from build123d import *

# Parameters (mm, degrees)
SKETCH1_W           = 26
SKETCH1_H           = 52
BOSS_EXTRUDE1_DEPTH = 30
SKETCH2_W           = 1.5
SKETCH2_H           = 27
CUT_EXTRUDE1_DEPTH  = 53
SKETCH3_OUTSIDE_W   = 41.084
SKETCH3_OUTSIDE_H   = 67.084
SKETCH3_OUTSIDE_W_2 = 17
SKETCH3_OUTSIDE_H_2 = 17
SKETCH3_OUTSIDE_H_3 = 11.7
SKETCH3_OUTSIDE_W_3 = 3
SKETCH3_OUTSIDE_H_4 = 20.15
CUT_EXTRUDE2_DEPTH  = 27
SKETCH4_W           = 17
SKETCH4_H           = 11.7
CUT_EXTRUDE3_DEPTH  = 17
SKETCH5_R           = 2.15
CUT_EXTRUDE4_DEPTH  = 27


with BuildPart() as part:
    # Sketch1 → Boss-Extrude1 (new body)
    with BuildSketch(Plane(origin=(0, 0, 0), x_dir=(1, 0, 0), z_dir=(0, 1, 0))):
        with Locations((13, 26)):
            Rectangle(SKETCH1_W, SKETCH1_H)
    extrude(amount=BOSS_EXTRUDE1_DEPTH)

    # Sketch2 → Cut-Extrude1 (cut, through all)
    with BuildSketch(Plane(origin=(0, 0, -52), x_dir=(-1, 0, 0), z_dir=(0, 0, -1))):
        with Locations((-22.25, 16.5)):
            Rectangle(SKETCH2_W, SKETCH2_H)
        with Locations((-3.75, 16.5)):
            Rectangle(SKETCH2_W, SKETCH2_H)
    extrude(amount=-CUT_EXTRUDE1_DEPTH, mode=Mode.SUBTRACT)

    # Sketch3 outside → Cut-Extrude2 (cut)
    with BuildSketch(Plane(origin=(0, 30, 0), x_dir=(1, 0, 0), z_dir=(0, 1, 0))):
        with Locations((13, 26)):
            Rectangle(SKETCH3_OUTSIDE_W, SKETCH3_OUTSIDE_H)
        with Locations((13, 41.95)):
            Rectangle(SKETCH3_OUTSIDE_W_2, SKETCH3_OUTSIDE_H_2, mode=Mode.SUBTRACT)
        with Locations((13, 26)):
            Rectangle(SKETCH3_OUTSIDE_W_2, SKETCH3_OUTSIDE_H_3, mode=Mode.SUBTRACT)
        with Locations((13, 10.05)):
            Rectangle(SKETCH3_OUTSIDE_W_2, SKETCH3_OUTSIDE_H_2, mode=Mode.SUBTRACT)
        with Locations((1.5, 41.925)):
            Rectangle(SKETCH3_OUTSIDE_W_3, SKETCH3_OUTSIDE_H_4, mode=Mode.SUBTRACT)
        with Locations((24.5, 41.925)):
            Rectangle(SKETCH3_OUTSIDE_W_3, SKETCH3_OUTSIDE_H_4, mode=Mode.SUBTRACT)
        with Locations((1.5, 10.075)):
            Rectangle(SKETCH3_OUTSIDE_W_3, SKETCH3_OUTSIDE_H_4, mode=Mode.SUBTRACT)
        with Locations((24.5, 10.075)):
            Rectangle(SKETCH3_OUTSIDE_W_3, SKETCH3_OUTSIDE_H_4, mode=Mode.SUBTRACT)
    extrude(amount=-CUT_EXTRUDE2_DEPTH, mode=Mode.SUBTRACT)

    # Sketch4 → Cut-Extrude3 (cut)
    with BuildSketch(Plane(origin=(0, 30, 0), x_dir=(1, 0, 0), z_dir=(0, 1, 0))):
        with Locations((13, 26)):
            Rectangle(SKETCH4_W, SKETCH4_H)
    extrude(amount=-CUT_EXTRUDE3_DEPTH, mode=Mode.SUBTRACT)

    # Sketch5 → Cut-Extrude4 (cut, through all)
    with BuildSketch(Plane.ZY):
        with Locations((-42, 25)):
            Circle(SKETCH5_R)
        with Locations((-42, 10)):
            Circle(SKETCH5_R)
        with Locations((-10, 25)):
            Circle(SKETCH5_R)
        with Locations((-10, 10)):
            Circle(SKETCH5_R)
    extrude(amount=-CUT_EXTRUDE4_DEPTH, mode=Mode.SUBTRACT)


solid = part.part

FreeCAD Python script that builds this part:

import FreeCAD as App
import Part
import Sketcher

V = App.Vector
Q = App.Units.Quantity

doc = App.newDocument("Part")
params = doc.addObject("Spreadsheet::Sheet", "Params")
for row, (alias, value) in enumerate([
    ("sketch1_width", "26 mm"),
    ("sketch1_height", "52 mm"),
    ("pad1_length", "30 mm"),
    ("sketch2_height", "27 mm"),
    ("sketch2_width", "1.5 mm"),
    ("sketch3_width", "3 mm"),
    ("sketch3_width2", "17 mm"),
    ("sketch3_height", "11.7 mm"),
    ("pocket2_length", "27 mm"),
    ("sketch4_width", "17 mm"),
    ("sketch4_height", "11.7 mm"),
    ("pocket3_length", "17 mm"),
    ("sketch5_diameter", "4.3 mm"),
], start=1):
    params.set(f"A{row}", alias)
    params.set(f"B{row}", "=" + value)
    params.setAlias(f"B{row}", alias)

body = doc.addObject("PartDesign::Body", "Body")

sketch1 = body.newObject("Sketcher::SketchObject", "Sketch")
sketch1.AttachmentSupport = (doc.getObject("XZ_Plane"), [""])
sketch1.MapMode = "FlatFace"
sketch1.addGeometry(Part.LineSegment(V(0, -52, 0), V(0, 0, 0)), False)
sketch1.addGeometry(Part.LineSegment(V(0, 0, 0), V(26, 0, 0)), False)
sketch1.addGeometry(Part.LineSegment(V(26, 0, 0), V(26, -52, 0)), False)
sketch1.addGeometry(Part.LineSegment(V(26, -52, 0), V(0, -52, 0)), False)
sketch1.addConstraint(Sketcher.Constraint("Coincident", 0, 2, 1, 1))
sketch1.addConstraint(Sketcher.Constraint("Coincident", 1, 2, 2, 1))
sketch1.addConstraint(Sketcher.Constraint("Coincident", 2, 2, 3, 1))
sketch1.addConstraint(Sketcher.Constraint("Coincident", 3, 2, 0, 1))
sketch1.addConstraint(Sketcher.Constraint("Vertical", 0))
sketch1.addConstraint(Sketcher.Constraint("Horizontal", 1))
sketch1.addConstraint(Sketcher.Constraint("Vertical", 2))
sketch1.addConstraint(Sketcher.Constraint("Horizontal", 3))
sketch1.addConstraint(Sketcher.Constraint("Coincident", 0, 2, -1, 1))
sketch1.addConstraint(Sketcher.Constraint("DistanceX", 1, 1, 1, 2, Q("26 mm")))
sketch1.addConstraint(Sketcher.Constraint("DistanceY", 0, 1, 0, 2, Q("52 mm")))
sketch1.setExpression("Constraints[9]", "Params.sketch1_width")
sketch1.setExpression("Constraints[10]", "Params.sketch1_height")
pad1 = body.newObject("PartDesign::Pad", "Pad")
pad1.Profile = sketch1
pad1.setExpression("Length", "Params.pad1_length")
pad1.Reversed = True

sketch2 = body.newObject("Sketcher::SketchObject", "Sketch001")
sketch2.AttachmentSupport = (doc.getObject("XY_Plane"), [""])
sketch2.MapMode = "FlatFace"
sketch2.AttachmentOffset = App.Placement(V(0, 0, -52), App.Rotation())
sketch2.addGeometry(Part.LineSegment(V(23, 30, 0), V(23, 3, 0)), False)
sketch2.addGeometry(Part.LineSegment(V(23, 3, 0), V(21.5, 3, 0)), False)
sketch2.addGeometry(Part.LineSegment(V(21.5, 3, 0), V(21.5, 30, 0)), False)
sketch2.addGeometry(Part.LineSegment(V(21.5, 30, 0), V(23, 30, 0)), False)
sketch2.addGeometry(Part.LineSegment(V(4.5, 30, 0), V(4.5, 3, 0)), False)
sketch2.addGeometry(Part.LineSegment(V(4.5, 3, 0), V(3, 3, 0)), False)
sketch2.addGeometry(Part.LineSegment(V(3, 3, 0), V(3, 30, 0)), False)
sketch2.addGeometry(Part.LineSegment(V(3, 30, 0), V(4.5, 30, 0)), False)
sketch2.addConstraint(Sketcher.Constraint("Coincident", 0, 2, 1, 1))
sketch2.addConstraint(Sketcher.Constraint("Coincident", 1, 2, 2, 1))
sketch2.addConstraint(Sketcher.Constraint("Coincident", 2, 2, 3, 1))
sketch2.addConstraint(Sketcher.Constraint("Coincident", 3, 2, 0, 1))
sketch2.addConstraint(Sketcher.Constraint("Coincident", 4, 2, 5, 1))
sketch2.addConstraint(Sketcher.Constraint("Coincident", 5, 2, 6, 1))
sketch2.addConstraint(Sketcher.Constraint("Coincident", 6, 2, 7, 1))
sketch2.addConstraint(Sketcher.Constraint("Coincident", 7, 2, 4, 1))
sketch2.addConstraint(Sketcher.Constraint("Vertical", 0))
sketch2.addConstraint(Sketcher.Constraint("Horizontal", 1))
sketch2.addConstraint(Sketcher.Constraint("Vertical", 2))
sketch2.addConstraint(Sketcher.Constraint("Horizontal", 3))
sketch2.addConstraint(Sketcher.Constraint("Vertical", 4))
sketch2.addConstraint(Sketcher.Constraint("Horizontal", 5))
sketch2.addConstraint(Sketcher.Constraint("Vertical", 6))
sketch2.addConstraint(Sketcher.Constraint("Horizontal", 7))
sketch2.addConstraint(Sketcher.Constraint("Horizontal", 1, 2, 4, 2))
sketch2.addConstraint(Sketcher.Constraint("Horizontal", 3, 2, 6, 2))
sketch2.addConstraint(Sketcher.Constraint("Equal", 3, 5))
sketch2.addConstraint(Sketcher.Constraint("DistanceY", 0, 2, 0, 1, Q("27 mm")))
sketch2.addConstraint(Sketcher.Constraint("DistanceX", 1, 2, 1, 1, Q("1.5 mm")))
sketch2.addConstraint(Sketcher.Constraint("DistanceX", -1, 1, 0, 2, Q("23 mm")))
sketch2.addConstraint(Sketcher.Constraint("DistanceY", -1, 1, 0, 2, Q("3 mm")))
sketch2.addConstraint(Sketcher.Constraint("DistanceX", -1, 1, 5, 2, Q("3 mm")))
sketch2.setExpression("Constraints[19]", "Params.sketch2_height")
sketch2.setExpression("Constraints[20]", "Params.sketch2_width")
pocket1 = body.newObject("PartDesign::Pocket", "Pocket")
pocket1.Profile = sketch2
pocket1.Type = "ThroughAll"
pocket1.Reversed = True

sketch3 = body.newObject("Sketcher::SketchObject", "Sketch002")
sketch3.AttachmentSupport = (doc.getObject("XZ_Plane"), [""])
sketch3.MapMode = "FlatFace"
sketch3.AttachmentOffset = App.Placement(V(0, 0, -30), App.Rotation())
sketch3.addGeometry(Part.LineSegment(V(-7.5, -59.5, 0), V(-7.5, 7.5, 0)), False)
sketch3.addGeometry(Part.LineSegment(V(-7.5, 7.5, 0), V(33.5, 7.5, 0)), False)
sketch3.addGeometry(Part.LineSegment(V(33.5, 7.5, 0), V(33.5, -59.5, 0)), False)
sketch3.addGeometry(Part.LineSegment(V(33.5, -59.5, 0), V(-7.5, -59.5, 0)), False)
sketch3.addGeometry(Part.LineSegment(V(3, 0, 0), V(0, 0, 0)), False)
sketch3.addGeometry(Part.LineSegment(V(0, 0, 0), V(0, -20.1, 0)), False)
sketch3.addGeometry(Part.LineSegment(V(0, -20.1, 0), V(3, -20.1, 0)), False)
sketch3.addGeometry(Part.LineSegment(V(3, -20.1, 0), V(3, 0, 0)), False)
sketch3.addGeometry(Part.LineSegment(V(21.5, -1.6, 0), V(4.5, -1.6, 0)), False)
sketch3.addGeometry(Part.LineSegment(V(4.5, -1.6, 0), V(4.5, -18.6, 0)), False)
sketch3.addGeometry(Part.LineSegment(V(4.5, -18.6, 0), V(21.5, -18.6, 0)), False)
sketch3.addGeometry(Part.LineSegment(V(21.5, -18.6, 0), V(21.5, -1.6, 0)), False)
sketch3.addGeometry(Part.LineSegment(V(26, 0, 0), V(23, 0, 0)), False)
sketch3.addGeometry(Part.LineSegment(V(23, 0, 0), V(23, -20.1, 0)), False)
sketch3.addGeometry(Part.LineSegment(V(23, -20.1, 0), V(26, -20.1, 0)), False)
sketch3.addGeometry(Part.LineSegment(V(26, -20.1, 0), V(26, 0, 0)), False)
sketch3.addGeometry(Part.LineSegment(V(3, -31.9, 0), V(0, -31.9, 0)), False)
sketch3.addGeometry(Part.LineSegment(V(0, -31.9, 0), V(0, -52, 0)), False)
sketch3.addGeometry(Part.LineSegment(V(0, -52, 0), V(3, -52, 0)), False)
sketch3.addGeometry(Part.LineSegment(V(3, -52, 0), V(3, -31.9, 0)), False)
sketch3.addGeometry(Part.LineSegment(V(21.5, -20.1, 0), V(4.5, -20.1, 0)), False)
sketch3.addGeometry(Part.LineSegment(V(4.5, -20.1, 0), V(4.5, -31.9, 0)), False)
sketch3.addGeometry(Part.LineSegment(V(4.5, -31.9, 0), V(21.5, -31.9, 0)), False)
sketch3.addGeometry(Part.LineSegment(V(21.5, -31.9, 0), V(21.5, -20.1, 0)), False)
sketch3.addGeometry(Part.LineSegment(V(21.5, -33.5, 0), V(4.5, -33.5, 0)), False)
sketch3.addGeometry(Part.LineSegment(V(4.5, -33.5, 0), V(4.5, -50.5, 0)), False)
sketch3.addGeometry(Part.LineSegment(V(4.5, -50.5, 0), V(21.5, -50.5, 0)), False)
sketch3.addGeometry(Part.LineSegment(V(21.5, -50.5, 0), V(21.5, -33.5, 0)), False)
sketch3.addGeometry(Part.LineSegment(V(26, -31.9, 0), V(23, -31.9, 0)), False)
sketch3.addGeometry(Part.LineSegment(V(23, -31.9, 0), V(23, -52, 0)), False)
sketch3.addGeometry(Part.LineSegment(V(23, -52, 0), V(26, -52, 0)), False)
sketch3.addGeometry(Part.LineSegment(V(26, -52, 0), V(26, -31.9, 0)), False)
sketch3.addConstraint(Sketcher.Constraint("Coincident", 0, 2, 1, 1))
sketch3.addConstraint(Sketcher.Constraint("Coincident", 1, 2, 2, 1))
sketch3.addConstraint(Sketcher.Constraint("Coincident", 2, 2, 3, 1))
sketch3.addConstraint(Sketcher.Constraint("Coincident", 3, 2, 0, 1))
sketch3.addConstraint(Sketcher.Constraint("Coincident", 4, 2, 5, 1))
sketch3.addConstraint(Sketcher.Constraint("Coincident", 5, 2, 6, 1))
sketch3.addConstraint(Sketcher.Constraint("Coincident", 6, 2, 7, 1))
sketch3.addConstraint(Sketcher.Constraint("Coincident", 7, 2, 4, 1))
sketch3.addConstraint(Sketcher.Constraint("Coincident", 8, 2, 9, 1))
sketch3.addConstraint(Sketcher.Constraint("Coincident", 9, 2, 10, 1))
sketch3.addConstraint(Sketcher.Constraint("Coincident", 10, 2, 11, 1))
sketch3.addConstraint(Sketcher.Constraint("Coincident", 11, 2, 8, 1))
sketch3.addConstraint(Sketcher.Constraint("Coincident", 12, 2, 13, 1))
sketch3.addConstraint(Sketcher.Constraint("Coincident", 13, 2, 14, 1))
sketch3.addConstraint(Sketcher.Constraint("Coincident", 14, 2, 15, 1))
sketch3.addConstraint(Sketcher.Constraint("Coincident", 15, 2, 12, 1))
sketch3.addConstraint(Sketcher.Constraint("Coincident", 16, 2, 17, 1))
sketch3.addConstraint(Sketcher.Constraint("Coincident", 17, 2, 18, 1))
sketch3.addConstraint(Sketcher.Constraint("Coincident", 18, 2, 19, 1))
sketch3.addConstraint(Sketcher.Constraint("Coincident", 19, 2, 16, 1))
sketch3.addConstraint(Sketcher.Constraint("Coincident", 20, 2, 21, 1))
sketch3.addConstraint(Sketcher.Constraint("Coincident", 21, 2, 22, 1))
sketch3.addConstraint(Sketcher.Constraint("Coincident", 22, 2, 23, 1))
sketch3.addConstraint(Sketcher.Constraint("Coincident", 23, 2, 20, 1))
sketch3.addConstraint(Sketcher.Constraint("Coincident", 24, 2, 25, 1))
sketch3.addConstraint(Sketcher.Constraint("Coincident", 25, 2, 26, 1))
sketch3.addConstraint(Sketcher.Constraint("Coincident", 26, 2, 27, 1))
sketch3.addConstraint(Sketcher.Constraint("Coincident", 27, 2, 24, 1))
sketch3.addConstraint(Sketcher.Constraint("Coincident", 28, 2, 29, 1))
sketch3.addConstraint(Sketcher.Constraint("Coincident", 29, 2, 30, 1))
sketch3.addConstraint(Sketcher.Constraint("Coincident", 30, 2, 31, 1))
sketch3.addConstraint(Sketcher.Constraint("Coincident", 31, 2, 28, 1))
sketch3.addConstraint(Sketcher.Constraint("Vertical", 0))
sketch3.addConstraint(Sketcher.Constraint("Horizontal", 1))
sketch3.addConstraint(Sketcher.Constraint("Vertical", 2))
sketch3.addConstraint(Sketcher.Constraint("Horizontal", 3))
sketch3.addConstraint(Sketcher.Constraint("Horizontal", 4))
sketch3.addConstraint(Sketcher.Constraint("Vertical", 5))
sketch3.addConstraint(Sketcher.Constraint("Horizontal", 6))
sketch3.addConstraint(Sketcher.Constraint("Vertical", 7))
sketch3.addConstraint(Sketcher.Constraint("Horizontal", 8))
sketch3.addConstraint(Sketcher.Constraint("Vertical", 9))
sketch3.addConstraint(Sketcher.Constraint("Horizontal", 10))
sketch3.addConstraint(Sketcher.Constraint("Vertical", 11))
sketch3.addConstraint(Sketcher.Constraint("Horizontal", 12))
sketch3.addConstraint(Sketcher.Constraint("Vertical", 13))
sketch3.addConstraint(Sketcher.Constraint("Horizontal", 14))
sketch3.addConstraint(Sketcher.Constraint("Vertical", 15))
sketch3.addConstraint(Sketcher.Constraint("Horizontal", 16))
sketch3.addConstraint(Sketcher.Constraint("Vertical", 17))
sketch3.addConstraint(Sketcher.Constraint("Horizontal", 18))
sketch3.addConstraint(Sketcher.Constraint("Vertical", 19))
sketch3.addConstraint(Sketcher.Constraint("Horizontal", 20))
sketch3.addConstraint(Sketcher.Constraint("Vertical", 21))
sketch3.addConstraint(Sketcher.Constraint("Horizontal", 22))
sketch3.addConstraint(Sketcher.Constraint("Vertical", 23))
sketch3.addConstraint(Sketcher.Constraint("Horizontal", 24))
sketch3.addConstraint(Sketcher.Constraint("Vertical", 25))
sketch3.addConstraint(Sketcher.Constraint("Horizontal", 26))
sketch3.addConstraint(Sketcher.Constraint("Vertical", 27))
sketch3.addConstraint(Sketcher.Constraint("Horizontal", 28))
sketch3.addConstraint(Sketcher.Constraint("Vertical", 29))
sketch3.addConstraint(Sketcher.Constraint("Horizontal", 30))
sketch3.addConstraint(Sketcher.Constraint("Vertical", 31))
sketch3.addConstraint(Sketcher.Constraint("Coincident", 4, 2, -1, 1))
sketch3.addConstraint(Sketcher.Constraint("PointOnObject", 12, 2, -1))
sketch3.addConstraint(Sketcher.Constraint("PointOnObject", 16, 2, -2))
sketch3.addConstraint(Sketcher.Constraint("Horizontal", 6, 2, 13, 2))
sketch3.addConstraint(Sketcher.Constraint("Horizontal", 14, 2, 20, 2))
sketch3.addConstraint(Sketcher.Constraint("Horizontal", 19, 2, 21, 2))
sketch3.addConstraint(Sketcher.Constraint("Horizontal", 22, 2, 28, 2))
sketch3.addConstraint(Sketcher.Constraint("Horizontal", 18, 2, 29, 2))
sketch3.addConstraint(Sketcher.Constraint("Vertical", 7, 2, 18, 2))
sketch3.addConstraint(Sketcher.Constraint("Vertical", 9, 2, 20, 2))
sketch3.addConstraint(Sketcher.Constraint("Vertical", 11, 2, 22, 2))
sketch3.addConstraint(Sketcher.Constraint("Vertical", 21, 2, 24, 2))
sketch3.addConstraint(Sketcher.Constraint("Vertical", 23, 2, 26, 2))
sketch3.addConstraint(Sketcher.Constraint("Vertical", 13, 2, 28, 2))
sketch3.addConstraint(Sketcher.Constraint("Vertical", 15, 2, 30, 2))
sketch3.addConstraint(Sketcher.Constraint("Equal", 6, 12))
sketch3.addConstraint(Sketcher.Constraint("Equal", 26, 9))
sketch3.addConstraint(Sketcher.Constraint("Equal", 15, 17))
sketch3.addConstraint(Sketcher.Constraint("Equal", 11, 25))
sketch3.addConstraint(Sketcher.Constraint("DistanceX", 4, 2, 4, 1, Q("3 mm")))
sketch3.addConstraint(Sketcher.Constraint("DistanceX", 8, 2, 8, 1, Q("17 mm")))
sketch3.addConstraint(Sketcher.Constraint("DistanceY", 21, 2, 21, 1, Q("11.7 mm")))
sketch3.addConstraint(Sketcher.Constraint("DistanceX", -1, 1, 12, 2, Q("23 mm")))
sketch3.addConstraint(Sketcher.Constraint("DistanceY", 17, 2, -1, 1, Q("52 mm")))
sketch3.addConstraint(Sketcher.Constraint("DistanceX", -1, 1, 8, 2, Q("4.5 mm")))
sketch3.addConstraint(Sketcher.Constraint("DistanceY", 6, 2, 8, 2, Q("18.6 mm")))
sketch3.addConstraint(Sketcher.Constraint("DistanceY", 24, 2, 21, 2, Q("1.6 mm")))
sketch3.addConstraint(Sketcher.Constraint("DistanceX", 1, 1, 1, 2, Q("41.084 mm")))
sketch3.addConstraint(Sketcher.Constraint("DistanceY", 0, 1, 0, 2, Q("67.084 mm")))
sketch3.addConstraint(Sketcher.Constraint("DistanceX", 0, 2, -1, 1, Q("7.542 mm")))
sketch3.addConstraint(Sketcher.Constraint("DistanceY", -1, 1, 0, 2, Q("7.542 mm")))
sketch3.setExpression("Constraints[83]", "Params.sketch3_width")
sketch3.setExpression("Constraints[84]", "Params.sketch3_width2")
sketch3.setExpression("Constraints[85]", "Params.sketch3_height")
pocket2 = body.newObject("PartDesign::Pocket", "Pocket001")
pocket2.Profile = sketch3
pocket2.setExpression("Length", "Params.pocket2_length")
pocket2.Reversed = True

sketch4 = body.newObject("Sketcher::SketchObject", "Sketch003")
sketch4.AttachmentSupport = (doc.getObject("XZ_Plane"), [""])
sketch4.MapMode = "FlatFace"
sketch4.AttachmentOffset = App.Placement(V(0, 0, -30), App.Rotation())
sketch4.addGeometry(Part.LineSegment(V(4, -32, 0), V(4, -20, 0)), False)
sketch4.addGeometry(Part.LineSegment(V(4, -20, 0), V(22, -20, 0)), False)
sketch4.addGeometry(Part.LineSegment(V(22, -20, 0), V(22, -32, 0)), False)
sketch4.addGeometry(Part.LineSegment(V(22, -32, 0), V(4, -32, 0)), False)
sketch4.addConstraint(Sketcher.Constraint("Coincident", 0, 2, 1, 1))
sketch4.addConstraint(Sketcher.Constraint("Coincident", 1, 2, 2, 1))
sketch4.addConstraint(Sketcher.Constraint("Coincident", 2, 2, 3, 1))
sketch4.addConstraint(Sketcher.Constraint("Coincident", 3, 2, 0, 1))
sketch4.addConstraint(Sketcher.Constraint("Vertical", 0))
sketch4.addConstraint(Sketcher.Constraint("Horizontal", 1))
sketch4.addConstraint(Sketcher.Constraint("Vertical", 2))
sketch4.addConstraint(Sketcher.Constraint("Horizontal", 3))
sketch4.addConstraint(Sketcher.Constraint("DistanceX", 1, 1, 1, 2, Q("17 mm")))
sketch4.addConstraint(Sketcher.Constraint("DistanceY", 0, 1, 0, 2, Q("11.7 mm")))
sketch4.addConstraint(Sketcher.Constraint("DistanceX", -1, 1, 0, 2, Q("4.5 mm")))
sketch4.addConstraint(Sketcher.Constraint("DistanceY", 0, 2, -1, 1, Q("20.15 mm")))
sketch4.setExpression("Constraints[8]", "Params.sketch4_width")
sketch4.setExpression("Constraints[9]", "Params.sketch4_height")
pocket3 = body.newObject("PartDesign::Pocket", "Pocket002")
pocket3.Profile = sketch4
pocket3.setExpression("Length", "Params.pocket3_length")
pocket3.Reversed = True

sketch5 = body.newObject("Sketcher::SketchObject", "Sketch004")
sketch5.AttachmentSupport = (doc.getObject("YZ_Plane"), [""])
sketch5.MapMode = "FlatFace"
sketch5.addGeometry(Part.Circle(V(25, -42, 0), V(0, 0, 1), 2.1), False)
sketch5.addGeometry(Part.Circle(V(10, -42, 0), V(0, 0, 1), 2.1), False)
sketch5.addGeometry(Part.Circle(V(25, -10, 0), V(0, 0, 1), 2.1), False)
sketch5.addGeometry(Part.Circle(V(10, -10, 0), V(0, 0, 1), 2.1), False)
sketch5.addConstraint(Sketcher.Constraint("Equal", 0, 1))
sketch5.addConstraint(Sketcher.Constraint("Equal", 1, 2))
sketch5.addConstraint(Sketcher.Constraint("Equal", 2, 3))
sketch5.addConstraint(Sketcher.Constraint("Horizontal", 0, 3, 1, 3))
sketch5.addConstraint(Sketcher.Constraint("Horizontal", 2, 3, 3, 3))
sketch5.addConstraint(Sketcher.Constraint("Vertical", 0, 3, 2, 3))
sketch5.addConstraint(Sketcher.Constraint("Vertical", 1, 3, 3, 3))
sketch5.addConstraint(Sketcher.Constraint("Diameter", 0, Q("4.3 mm")))
sketch5.addConstraint(Sketcher.Constraint("DistanceX", -1, 1, 0, 3, Q("25 mm")))
sketch5.addConstraint(Sketcher.Constraint("DistanceY", 0, 3, -1, 1, Q("42 mm")))
sketch5.addConstraint(Sketcher.Constraint("DistanceX", -1, 1, 1, 3, Q("10 mm")))
sketch5.addConstraint(Sketcher.Constraint("DistanceY", 2, 3, -1, 1, Q("10 mm")))
sketch5.setExpression("Constraints[7]", "Params.sketch5_diameter")
pocket4 = body.newObject("PartDesign::Pocket", "Pocket003")
pocket4.Profile = sketch5
pocket4.Type = "ThroughAll"
pocket4.Reversed = True

doc.recompute()
